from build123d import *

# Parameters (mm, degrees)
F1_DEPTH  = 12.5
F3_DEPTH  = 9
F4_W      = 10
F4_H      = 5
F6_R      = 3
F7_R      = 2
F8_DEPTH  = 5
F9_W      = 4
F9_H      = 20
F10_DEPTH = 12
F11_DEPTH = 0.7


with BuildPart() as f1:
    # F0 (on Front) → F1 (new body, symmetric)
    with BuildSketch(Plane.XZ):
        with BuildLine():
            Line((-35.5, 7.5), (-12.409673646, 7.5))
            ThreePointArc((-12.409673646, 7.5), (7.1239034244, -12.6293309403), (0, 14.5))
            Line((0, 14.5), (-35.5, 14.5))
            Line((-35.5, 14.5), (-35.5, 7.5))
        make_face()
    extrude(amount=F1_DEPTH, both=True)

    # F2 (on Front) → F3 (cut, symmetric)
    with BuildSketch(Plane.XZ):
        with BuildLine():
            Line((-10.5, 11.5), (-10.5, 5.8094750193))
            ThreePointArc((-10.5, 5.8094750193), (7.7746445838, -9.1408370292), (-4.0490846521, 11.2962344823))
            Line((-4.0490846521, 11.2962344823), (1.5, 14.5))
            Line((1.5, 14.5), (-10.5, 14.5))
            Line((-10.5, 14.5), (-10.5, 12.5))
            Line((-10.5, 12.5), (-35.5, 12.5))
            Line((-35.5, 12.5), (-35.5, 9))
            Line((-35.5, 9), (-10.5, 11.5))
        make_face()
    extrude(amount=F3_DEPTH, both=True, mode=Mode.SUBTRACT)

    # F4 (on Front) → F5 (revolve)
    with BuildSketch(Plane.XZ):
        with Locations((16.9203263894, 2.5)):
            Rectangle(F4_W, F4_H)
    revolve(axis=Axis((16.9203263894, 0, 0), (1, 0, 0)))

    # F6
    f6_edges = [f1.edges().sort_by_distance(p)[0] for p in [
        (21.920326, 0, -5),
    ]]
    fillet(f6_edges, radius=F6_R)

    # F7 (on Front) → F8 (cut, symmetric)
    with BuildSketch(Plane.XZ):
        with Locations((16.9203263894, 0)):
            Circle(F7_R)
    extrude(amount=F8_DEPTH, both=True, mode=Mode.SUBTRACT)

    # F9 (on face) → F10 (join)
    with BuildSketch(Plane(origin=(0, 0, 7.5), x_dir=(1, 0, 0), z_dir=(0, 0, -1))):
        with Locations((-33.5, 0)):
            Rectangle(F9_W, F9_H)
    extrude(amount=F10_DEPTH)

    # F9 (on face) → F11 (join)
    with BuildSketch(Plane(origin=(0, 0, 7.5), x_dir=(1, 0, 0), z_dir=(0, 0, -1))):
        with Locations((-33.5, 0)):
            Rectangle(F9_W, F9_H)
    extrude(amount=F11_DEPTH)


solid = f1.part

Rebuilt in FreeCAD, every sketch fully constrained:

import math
import FreeCAD as App
import Part
import Sketcher
Q = App.Units.Quantity


def edges_at(feature, points):
    """Names of the edges that pass closest to the given points."""
    edges = feature.Shape.Edges
    near = lambda p: min(range(len(edges)), key=lambda i: edges[i].distToShape(Part.Vertex(*p))[0])
    return sorted({f"Edge{near(p) + 1}" for p in points})


def add_polygon(sketch, points):
    """Adds a closed chain of lines whose ends are joined by coincident constraints."""
    first, n = sketch.GeometryCount, len(points)
    for a, b in zip(points, points[1:] + points[:1]):
        sketch.addGeometry(Part.LineSegment(App.Vector(*a, 0), App.Vector(*b, 0)), False)
    for i in range(n):
        sketch.addConstraint(Sketcher.Constraint("Coincident", first + i, 2, first + (i + 1) % n, 1))

doc = App.newDocument("Part")
body = doc.addObject("PartDesign::Body", "Body")

# Sketch on XZ plane
sketch1 = body.newObject("Sketcher::SketchObject", "Sketch")
sketch1.AttachmentSupport = (doc.getObject("XZ_Plane"), [""])
sketch1.MapMode = "FlatFace"
sketch1.addGeometry([
    Part.LineSegment(App.Vector(-36, 8, 0), App.Vector(-12, 8, 0)),
    Part.ArcOfCircle(Part.Circle(App.Vector(0, 0, 0), App.Vector(0, 0, 1), 14), math.radians(149), math.radians(450)),
    Part.LineSegment(App.Vector(0, 14, 0), App.Vector(-36, 14, 0)),
    Part.LineSegment(App.Vector(-36, 14, 0), App.Vector(-36, 8, 0)),
], False)
sketch1.addConstraint([
    Sketcher.Constraint("Coincident", 0, 2, 1, 1),
    Sketcher.Constraint("Tangent", 1, 2, 2, 1),
    Sketcher.Constraint("Coincident", 2, 2, 3, 1),
    Sketcher.Constraint("Coincident", 3, 2, 0, 1),
    Sketcher.Constraint("Horizontal", 0),
    Sketcher.Constraint("Horizontal", 2),
    Sketcher.Constraint("Vertical", 3),
    Sketcher.Constraint("Coincident", 1, 3, -1, 1),
    Sketcher.Constraint("Radius", 1, 14.5),
    Sketcher.Constraint("DistanceY", 3, 2, 3, 1, 7.0),
    Sketcher.Constraint("DistanceX", 2, 2, 2, 1, 35.5),
])
pad1 = body.newObject("PartDesign::Pad", "Pad")
pad1.Profile = sketch1
pad1.Length = 25
pad1.Midplane = True

# Sketch on XZ plane
sketch2 = body.newObject("Sketcher::SketchObject", "Sketch001")
sketch2.AttachmentSupport = (doc.getObject("XZ_Plane"), [""])
sketch2.MapMode = "FlatFace"
sketch2.addGeometry([
    Part.LineSegment(App.Vector(-10.5, 11.5, 0), App.Vector(-10.5, 5.8, 0)),  # 0
    Part.ArcOfCircle(Part.Circle(App.Vector(0, 0, 0), App.Vector(0, 0, 1), 12), math.radians(151), math.radians(470)),  # 1
    Part.LineSegment(App.Vector(-4, 11.3, 0), App.Vector(1.5, 14.5, 0)),  # 2
    Part.LineSegment(App.Vector(1.5, 14.5, 0), App.Vector(-10.5, 14.5, 0)),  # 3
    Part.LineSegment(App.Vector(-10.5, 14.5, 0), App.Vector(-10.5, 12.5, 0)),  # 4
    Part.LineSegment(App.Vector(-10.5, 12.5, 0), App.Vector(-35.5, 12.5, 0)),  # 5
    Part.LineSegment(App.Vector(-35.5, 12.5, 0), App.Vector(-35.5, 9, 0)),  # 6
    Part.LineSegment(App.Vector(-35.5, 9, 0), App.Vector(-10.5, 11.5, 0)),  # 7
], False)
sketch2.addConstraint([
    Sketcher.Constraint("Coincident", 0, 2, 1, 1),
    Sketcher.Constraint("Coincident", 1, 2, 2, 1),
    Sketcher.Constraint("Coincident", 2, 2, 3, 1),
    Sketcher.Constraint("Coincident", 3, 2, 4, 1),
    Sketcher.Constraint("Coincident", 4, 2, 5, 1),
    Sketcher.Constraint("Coincident", 5, 2, 6, 1),
    Sketcher.Constraint("Coincident", 6, 2, 7, 1),
    Sketcher.Constraint("Coincident", 7, 2, 0, 1),
    Sketcher.Constraint("Vertical", 0),
    Sketcher.Constraint("Horizontal", 3),
    Sketcher.Constraint("Vertical", 4),
    Sketcher.Constraint("Horizontal", 5),
    Sketcher.Constraint("Vertical", 6),
    Sketcher.Constraint("Coincident", 1, 3, -1, 1),
    Sketcher.Constraint("Vertical", 0, 2, 3, 2),
    Sketcher.Constraint("Radius", 1, 12.0),
    Sketcher.Constraint("DistanceX", 3, 2, 3, 1, 12.0),
    Sketcher.Constraint("DistanceX", 5, 2, 5, 1, 25.0),
    Sketcher.Constraint("DistanceY", 4, 2, 4, 1, 2.0),
    Sketcher.Constraint("Angle", 2, Q("30 deg")),
    Sketcher.Constraint("DistanceY", 6, 2, 6, 1, 3.5),
    Sketcher.Constraint("DistanceY", -1, 1, 6, 2, 9.0),
    Sketcher.Constraint("DistanceY", 7, 2, 4, 2, 1.0),
    Sketcher.Constraint("DistanceX", 0, 2, -1, 1, 10.5),
])
pocket1 = body.newObject("PartDesign::Pocket", "Pocket")
pocket1.Profile = sketch2
pocket1.Length = 18
pocket1.Midplane = True

# Sketch on XZ plane
sketch3 = body.newObject("Sketcher::SketchObject", "Sketch002")
sketch3.AttachmentSupport = (doc.getObject("XZ_Plane"), [""])
sketch3.MapMode = "FlatFace"
add_polygon(sketch3, [(12, 5), (12, 0), (22, 0), (22, 5)])  # lines 0-3
sketch3.addConstraint([
    Sketcher.Constraint("Vertical", 0),
    Sketcher.Constraint("Horizontal", 1),
    Sketcher.Constraint("Vertical", 2),
    Sketcher.Constraint("Horizontal", 3),
    Sketcher.Constraint("PointOnObject", 0, 2, -1),
    Sketcher.Constraint("DistanceX", 1, 1, 1, 2, 10.0),
    Sketcher.Constraint("DistanceY", 0, 2, 0, 1, 5.0),
    Sketcher.Constraint("DistanceX", -1, 1, 0, 2, 11.920326),
])
revolution = body.newObject("PartDesign::Revolution", "Revolution")
revolution.Profile = sketch3
revolution.ReferenceAxis = (sketch3, ["H_Axis"])
revolution.Angle = 360
doc.recompute()

fillet = body.newObject("PartDesign::Fillet", "Fillet")
fillet.Base = (revolution, edges_at(revolution, [(21.92, 0, -5)]))
fillet.Radius = 3

# Sketch on XZ plane
sketch4 = body.newObject("Sketcher::SketchObject", "Sketch003")
sketch4.AttachmentSupport = (doc.getObject("XZ_Plane"), [""])
sketch4.MapMode = "FlatFace"
sketch4.addGeometry(Part.Circle(App.Vector(16.9, 0, 0), App.Vector(0, 0, 1), 2), False)
sketch4.addConstraint([
    Sketcher.Constraint("PointOnObject", 0, 3, -1),
    Sketcher.Constraint("Diameter", 0, 4.0),
    Sketcher.Constraint("DistanceX", -1, 1, 0, 3, 16.920326),
])
pocket2 = body.newObject("PartDesign::Pocket", "Pocket001")
pocket2.Profile = sketch4
pocket2.Length = 10
pocket2.Midplane = True

# Sketch on XY plane
sketch5 = body.newObject("Sketcher::SketchObject", "Sketch004")
sketch5.AttachmentSupport = (doc.getObject("XY_Plane"), [""])
sketch5.MapMode = "FlatFace"
sketch5.AttachmentOffset = App.Placement(App.Vector(0, 0, 7.5), App.Rotation())
add_polygon(sketch5, [(-35.5, -10), (-35.5, 10), (-31.5, 10), (-31.5, -10)])  # lines 0-3
sketch5.addConstraint([
    Sketcher.Constraint("Vertical", 0),
    Sketcher.Constraint("Horizontal", 1),
    Sketcher.Constraint("Vertical", 2),
    Sketcher.Constraint("Horizontal", 3),
    Sketcher.Constraint("DistanceX", 1, 1, 1, 2, 4.0),
    Sketcher.Constraint("DistanceY", 0, 1, 0, 2, 20.0),
    Sketcher.Constraint("DistanceY", -1, 1, 0, 2, 10.0),
    Sketcher.Constraint("DistanceX", 0, 2, -1, 1, 35.5),
])
pad2 = body.newObject("PartDesign::Pad", "Pad001")
pad2.Profile = sketch5
pad2.Length = 12
pad2.Reversed = True

# Sketch on XY plane
sketch6 = body.newObject("Sketcher::SketchObject", "Sketch005")
sketch6.AttachmentSupport = (doc.getObject("XY_Plane"), [""])
sketch6.MapMode = "FlatFace"
sketch6.AttachmentOffset = App.Placement(App.Vector(0, 0, 7.5), App.Rotation())
add_polygon(sketch6, [(-35.5, -10), (-35.5, 10), (-31.5, 10), (-31.5, -10)])  # lines 0-3
sketch6.addConstraint([
    Sketcher.Constraint("Vertical", 0),
    Sketcher.Constraint("Horizontal", 1),
    Sketcher.Constraint("Vertical", 2),
    Sketcher.Constraint("Horizontal", 3),
    Sketcher.Constraint("DistanceX", 1, 1, 1, 2, 4.0),
    Sketcher.Constraint("DistanceY", 0, 1, 0, 2, 20.0),
    Sketcher.Constraint("DistanceY", -1, 1, 0, 2, 10.0),
    Sketcher.Constraint("DistanceX", 0, 2, -1, 1, 35.5),
])
pad3 = body.newObject("PartDesign::Pad", "Pad002")
pad3.Profile = sketch6
pad3.Length = 0.7
pad3.Reversed = True

doc.recompute()
